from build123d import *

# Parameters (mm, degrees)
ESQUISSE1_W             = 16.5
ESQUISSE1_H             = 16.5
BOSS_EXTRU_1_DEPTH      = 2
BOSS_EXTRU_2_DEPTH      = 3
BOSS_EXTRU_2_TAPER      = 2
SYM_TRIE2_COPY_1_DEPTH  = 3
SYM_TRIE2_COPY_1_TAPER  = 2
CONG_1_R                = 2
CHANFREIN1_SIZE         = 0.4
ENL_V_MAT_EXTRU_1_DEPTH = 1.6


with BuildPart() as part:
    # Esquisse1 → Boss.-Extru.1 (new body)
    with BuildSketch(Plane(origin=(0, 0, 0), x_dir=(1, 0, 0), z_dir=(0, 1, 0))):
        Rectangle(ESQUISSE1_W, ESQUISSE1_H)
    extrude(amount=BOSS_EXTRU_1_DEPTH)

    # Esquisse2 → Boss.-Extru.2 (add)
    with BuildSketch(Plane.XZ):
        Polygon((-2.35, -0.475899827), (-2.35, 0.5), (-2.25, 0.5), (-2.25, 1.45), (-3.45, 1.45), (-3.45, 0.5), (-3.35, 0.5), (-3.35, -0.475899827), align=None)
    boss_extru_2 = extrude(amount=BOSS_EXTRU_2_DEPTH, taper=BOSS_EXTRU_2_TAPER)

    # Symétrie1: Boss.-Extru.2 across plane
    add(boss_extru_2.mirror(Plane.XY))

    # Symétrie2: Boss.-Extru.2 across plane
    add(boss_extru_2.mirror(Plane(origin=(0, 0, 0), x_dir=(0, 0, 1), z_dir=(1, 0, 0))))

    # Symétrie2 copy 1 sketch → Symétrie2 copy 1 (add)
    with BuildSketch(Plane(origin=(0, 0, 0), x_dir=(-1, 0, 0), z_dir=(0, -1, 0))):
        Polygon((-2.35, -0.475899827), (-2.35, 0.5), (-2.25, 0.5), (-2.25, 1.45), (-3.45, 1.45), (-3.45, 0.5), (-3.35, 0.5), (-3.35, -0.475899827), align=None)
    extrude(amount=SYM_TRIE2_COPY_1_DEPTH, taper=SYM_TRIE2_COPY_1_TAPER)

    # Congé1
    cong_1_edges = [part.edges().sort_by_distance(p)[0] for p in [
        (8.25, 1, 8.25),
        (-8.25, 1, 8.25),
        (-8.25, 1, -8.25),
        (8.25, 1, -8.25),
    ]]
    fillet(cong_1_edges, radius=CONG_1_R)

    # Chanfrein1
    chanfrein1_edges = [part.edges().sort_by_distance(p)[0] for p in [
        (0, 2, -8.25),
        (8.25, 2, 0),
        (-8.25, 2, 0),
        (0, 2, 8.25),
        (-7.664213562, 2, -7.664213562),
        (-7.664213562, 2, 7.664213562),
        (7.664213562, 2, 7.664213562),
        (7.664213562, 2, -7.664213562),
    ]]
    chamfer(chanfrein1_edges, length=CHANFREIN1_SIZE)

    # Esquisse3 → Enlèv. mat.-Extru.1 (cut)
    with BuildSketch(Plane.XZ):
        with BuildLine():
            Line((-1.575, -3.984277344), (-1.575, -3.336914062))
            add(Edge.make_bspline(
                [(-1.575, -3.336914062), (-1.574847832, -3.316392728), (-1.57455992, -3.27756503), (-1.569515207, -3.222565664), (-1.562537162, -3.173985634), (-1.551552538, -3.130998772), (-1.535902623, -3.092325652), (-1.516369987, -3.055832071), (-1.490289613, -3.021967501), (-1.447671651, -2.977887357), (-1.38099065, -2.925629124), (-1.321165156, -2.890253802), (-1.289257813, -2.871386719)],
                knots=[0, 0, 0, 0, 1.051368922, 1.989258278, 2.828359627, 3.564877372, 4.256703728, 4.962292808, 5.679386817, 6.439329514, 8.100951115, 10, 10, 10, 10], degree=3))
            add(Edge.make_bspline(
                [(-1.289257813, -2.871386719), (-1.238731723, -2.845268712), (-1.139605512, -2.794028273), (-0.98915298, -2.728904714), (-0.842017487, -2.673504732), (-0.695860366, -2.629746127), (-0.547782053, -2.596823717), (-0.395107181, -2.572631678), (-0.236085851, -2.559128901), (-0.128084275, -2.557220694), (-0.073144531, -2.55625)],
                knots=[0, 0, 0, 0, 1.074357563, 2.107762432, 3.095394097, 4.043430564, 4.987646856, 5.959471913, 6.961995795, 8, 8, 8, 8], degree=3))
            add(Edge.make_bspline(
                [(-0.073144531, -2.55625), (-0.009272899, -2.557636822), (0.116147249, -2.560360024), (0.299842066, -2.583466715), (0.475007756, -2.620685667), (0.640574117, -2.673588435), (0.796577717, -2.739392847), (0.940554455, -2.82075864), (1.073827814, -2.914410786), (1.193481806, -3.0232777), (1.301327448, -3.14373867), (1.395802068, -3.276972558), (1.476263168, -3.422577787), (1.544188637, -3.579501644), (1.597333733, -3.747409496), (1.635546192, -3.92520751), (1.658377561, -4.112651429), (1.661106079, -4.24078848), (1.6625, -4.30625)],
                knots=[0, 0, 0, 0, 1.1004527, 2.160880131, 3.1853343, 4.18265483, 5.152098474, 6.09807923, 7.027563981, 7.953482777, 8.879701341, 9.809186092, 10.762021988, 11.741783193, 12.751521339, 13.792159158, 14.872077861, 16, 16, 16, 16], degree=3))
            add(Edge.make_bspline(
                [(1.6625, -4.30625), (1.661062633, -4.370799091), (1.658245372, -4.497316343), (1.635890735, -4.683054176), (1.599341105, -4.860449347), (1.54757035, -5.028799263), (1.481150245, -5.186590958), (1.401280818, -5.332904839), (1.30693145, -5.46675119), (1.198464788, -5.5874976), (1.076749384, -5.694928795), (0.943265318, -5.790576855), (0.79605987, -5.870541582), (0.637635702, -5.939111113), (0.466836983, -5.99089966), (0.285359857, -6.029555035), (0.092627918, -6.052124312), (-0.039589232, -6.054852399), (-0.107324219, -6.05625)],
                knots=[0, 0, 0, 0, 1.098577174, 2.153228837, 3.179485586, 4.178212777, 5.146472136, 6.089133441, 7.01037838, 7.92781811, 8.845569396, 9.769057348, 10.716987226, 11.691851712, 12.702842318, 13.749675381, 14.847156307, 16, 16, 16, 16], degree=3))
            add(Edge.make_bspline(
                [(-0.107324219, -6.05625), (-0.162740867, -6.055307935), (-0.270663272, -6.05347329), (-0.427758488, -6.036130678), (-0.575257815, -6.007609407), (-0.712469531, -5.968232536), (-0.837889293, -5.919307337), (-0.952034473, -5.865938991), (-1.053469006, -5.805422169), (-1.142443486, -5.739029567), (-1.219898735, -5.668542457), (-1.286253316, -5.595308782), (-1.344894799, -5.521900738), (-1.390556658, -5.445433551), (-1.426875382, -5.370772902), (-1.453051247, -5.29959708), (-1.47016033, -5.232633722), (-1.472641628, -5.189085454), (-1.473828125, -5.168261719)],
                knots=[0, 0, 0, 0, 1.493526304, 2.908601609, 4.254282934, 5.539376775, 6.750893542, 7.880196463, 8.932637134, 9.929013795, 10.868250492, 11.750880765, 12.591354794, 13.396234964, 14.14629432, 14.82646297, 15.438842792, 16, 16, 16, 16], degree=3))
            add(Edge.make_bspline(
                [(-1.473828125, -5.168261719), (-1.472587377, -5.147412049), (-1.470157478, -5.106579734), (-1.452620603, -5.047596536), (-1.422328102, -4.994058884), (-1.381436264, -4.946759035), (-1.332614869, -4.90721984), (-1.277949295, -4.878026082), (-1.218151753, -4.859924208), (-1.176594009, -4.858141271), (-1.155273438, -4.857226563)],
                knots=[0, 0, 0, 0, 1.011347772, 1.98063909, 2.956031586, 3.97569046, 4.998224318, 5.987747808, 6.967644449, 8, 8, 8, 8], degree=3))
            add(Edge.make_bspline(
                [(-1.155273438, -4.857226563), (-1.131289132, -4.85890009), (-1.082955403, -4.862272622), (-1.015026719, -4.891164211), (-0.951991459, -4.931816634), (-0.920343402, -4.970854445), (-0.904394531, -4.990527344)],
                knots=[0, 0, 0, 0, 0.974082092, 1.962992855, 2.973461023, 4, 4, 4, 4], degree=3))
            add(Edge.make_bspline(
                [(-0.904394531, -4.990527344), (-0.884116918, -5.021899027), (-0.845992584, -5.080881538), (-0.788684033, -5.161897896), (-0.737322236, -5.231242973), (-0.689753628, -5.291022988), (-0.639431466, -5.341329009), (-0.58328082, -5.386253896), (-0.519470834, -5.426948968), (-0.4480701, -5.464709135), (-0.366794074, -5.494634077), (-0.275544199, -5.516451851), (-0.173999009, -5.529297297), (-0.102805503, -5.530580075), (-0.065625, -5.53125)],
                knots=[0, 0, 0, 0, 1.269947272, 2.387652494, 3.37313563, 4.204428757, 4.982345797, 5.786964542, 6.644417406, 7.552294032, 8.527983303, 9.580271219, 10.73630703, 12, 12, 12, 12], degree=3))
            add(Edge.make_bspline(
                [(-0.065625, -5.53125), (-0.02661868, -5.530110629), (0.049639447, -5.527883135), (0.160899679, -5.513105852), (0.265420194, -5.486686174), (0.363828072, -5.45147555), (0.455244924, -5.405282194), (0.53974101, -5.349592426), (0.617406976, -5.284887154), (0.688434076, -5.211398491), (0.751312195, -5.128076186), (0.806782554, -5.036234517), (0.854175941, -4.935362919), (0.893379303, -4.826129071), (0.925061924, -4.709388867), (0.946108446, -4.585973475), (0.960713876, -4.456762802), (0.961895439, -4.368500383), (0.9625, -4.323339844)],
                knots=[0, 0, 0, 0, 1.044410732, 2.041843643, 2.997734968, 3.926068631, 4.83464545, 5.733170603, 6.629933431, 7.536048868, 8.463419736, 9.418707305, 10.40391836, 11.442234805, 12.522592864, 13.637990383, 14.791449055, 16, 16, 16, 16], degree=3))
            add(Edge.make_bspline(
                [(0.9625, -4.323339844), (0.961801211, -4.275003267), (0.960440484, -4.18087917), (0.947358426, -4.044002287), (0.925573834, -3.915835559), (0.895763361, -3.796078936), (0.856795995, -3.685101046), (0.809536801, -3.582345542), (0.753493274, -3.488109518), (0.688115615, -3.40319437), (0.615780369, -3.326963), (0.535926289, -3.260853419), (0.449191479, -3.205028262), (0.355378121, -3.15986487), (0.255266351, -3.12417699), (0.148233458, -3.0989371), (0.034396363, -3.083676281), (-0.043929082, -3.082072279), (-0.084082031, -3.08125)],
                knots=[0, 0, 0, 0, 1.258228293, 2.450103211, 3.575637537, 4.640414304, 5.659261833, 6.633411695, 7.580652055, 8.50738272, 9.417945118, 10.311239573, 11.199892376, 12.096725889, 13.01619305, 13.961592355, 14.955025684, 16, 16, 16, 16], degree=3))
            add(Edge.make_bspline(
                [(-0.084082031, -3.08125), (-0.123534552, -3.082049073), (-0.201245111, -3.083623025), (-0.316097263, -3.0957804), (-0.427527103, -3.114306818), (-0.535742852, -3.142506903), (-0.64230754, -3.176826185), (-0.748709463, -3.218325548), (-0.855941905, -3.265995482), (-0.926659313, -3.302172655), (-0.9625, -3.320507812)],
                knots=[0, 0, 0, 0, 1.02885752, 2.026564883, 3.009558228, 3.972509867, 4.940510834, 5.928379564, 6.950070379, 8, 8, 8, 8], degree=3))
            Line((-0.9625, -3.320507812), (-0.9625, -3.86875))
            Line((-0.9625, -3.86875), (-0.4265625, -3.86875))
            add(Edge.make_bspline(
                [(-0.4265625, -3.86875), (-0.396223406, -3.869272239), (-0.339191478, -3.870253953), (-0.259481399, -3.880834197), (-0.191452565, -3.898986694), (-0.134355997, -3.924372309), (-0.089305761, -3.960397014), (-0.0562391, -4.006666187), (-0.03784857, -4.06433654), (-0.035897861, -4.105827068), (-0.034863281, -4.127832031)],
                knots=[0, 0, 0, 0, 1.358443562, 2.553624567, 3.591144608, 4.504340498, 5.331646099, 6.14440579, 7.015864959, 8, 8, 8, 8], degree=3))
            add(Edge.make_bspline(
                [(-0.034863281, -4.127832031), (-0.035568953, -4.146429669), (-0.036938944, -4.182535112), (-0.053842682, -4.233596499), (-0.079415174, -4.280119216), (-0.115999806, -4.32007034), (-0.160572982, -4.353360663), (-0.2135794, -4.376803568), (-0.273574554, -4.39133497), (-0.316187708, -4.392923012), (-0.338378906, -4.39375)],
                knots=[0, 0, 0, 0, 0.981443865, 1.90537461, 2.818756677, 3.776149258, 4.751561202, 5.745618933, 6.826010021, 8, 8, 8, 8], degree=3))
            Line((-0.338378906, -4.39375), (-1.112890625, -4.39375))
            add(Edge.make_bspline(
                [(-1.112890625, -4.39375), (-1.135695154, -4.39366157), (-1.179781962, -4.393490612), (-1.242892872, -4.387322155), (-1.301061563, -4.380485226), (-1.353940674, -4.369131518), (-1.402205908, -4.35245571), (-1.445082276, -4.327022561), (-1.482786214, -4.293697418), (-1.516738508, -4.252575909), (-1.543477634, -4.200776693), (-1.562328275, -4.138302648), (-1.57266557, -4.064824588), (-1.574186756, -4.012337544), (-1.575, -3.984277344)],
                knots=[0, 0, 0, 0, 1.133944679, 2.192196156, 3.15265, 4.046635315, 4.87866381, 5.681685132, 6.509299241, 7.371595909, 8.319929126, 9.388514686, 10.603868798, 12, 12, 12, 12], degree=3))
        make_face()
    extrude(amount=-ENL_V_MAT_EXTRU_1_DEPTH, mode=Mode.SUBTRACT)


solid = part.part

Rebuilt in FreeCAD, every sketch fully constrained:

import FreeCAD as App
import Part
import Sketcher
from FreeCAD import Vector


def edges_at(feature, points):
    """Names of the edges that pass closest to the given points."""
    edges = feature.Shape.Edges
    near = lambda p: min(range(len(edges)), key=lambda i: edges[i].distToShape(Part.Vertex(*p))[0])
    return sorted({f"Edge{near(p) + 1}" for p in points})

doc = App.newDocument("Part")
body = doc.addObject("PartDesign::Body", "Body")

# Sketch on XZ plane
sketch1 = body.newObject("Sketcher::SketchObject", "Sketch")
sketch1.AttachmentSupport = (doc.getObject("XZ_Plane"), [""])
sketch1.MapMode = "FlatFace"
sketch1.addGeometry(Part.LineSegment(Vector(-8.25, -8.25, 0), Vector(-8.25, 8.25, 0)), False)
sketch1.addGeometry(Part.LineSegment(Vector(-8.25, 8.25, 0), Vector(8.25, 8.25, 0)), False)
sketch1.addGeometry(Part.LineSegment(Vector(8.25, 8.25, 0), Vector(8.25, -8.25, 0)), False)
sketch1.addGeometry(Part.LineSegment(Vector(8.25, -8.25, 0), Vector(-8.25, -8.25, 0)), False)
sketch1.addConstraint(Sketcher.Constraint("Coincident", 0, 2, 1, 1))
sketch1.addConstraint(Sketcher.Constraint("Coincident", 1, 2, 2, 1))
sketch1.addConstraint(Sketcher.Constraint("Coincident", 2, 2, 3, 1))
sketch1.addConstraint(Sketcher.Constraint("Coincident", 3, 2, 0, 1))
sketch1.addConstraint(Sketcher.Constraint("Vertical", 0))
sketch1.addConstraint(Sketcher.Constraint("Horizontal", 1))
sketch1.addConstraint(Sketcher.Constraint("Vertical", 2))
sketch1.addConstraint(Sketcher.Constraint("Horizontal", 3))
sketch1.addConstraint(Sketcher.Constraint("Symmetric", 0, 2, 2, 2, -1, 1))
sketch1.addConstraint(Sketcher.Constraint("Equal", 3, 0))
sketch1.addConstraint(Sketcher.Constraint("DistanceX", 1, 1, 1, 2, 16.5))
pad1 = body.newObject("PartDesign::Pad", "Pad")
pad1.Profile = sketch1
pad1.Length = 2
pad1.Reversed = True

# Sketch on XZ plane
sketch2 = body.newObject("Sketcher::SketchObject", "Sketch001")
sketch2.AttachmentSupport = (doc.getObject("XZ_Plane"), [""])
sketch2.MapMode = "FlatFace"
sketch2.addGeometry(Part.LineSegment(Vector(-2.35, -0.4759, 0), Vector(-2.35, 0.5, 0)), False)
sketch2.addGeometry(Part.LineSegment(Vector(-2.35, 0.5, 0), Vector(-2.25, 0.5, 0)), False)
sketch2.addGeometry(Part.LineSegment(Vector(-2.25, 0.5, 0), Vector(-2.25, 1.45, 0)), False)
sketch2.addGeometry(Part.LineSegment(Vector(-2.25, 1.45, 0), Vector(-3.45, 1.45, 0)), False)
sketch2.addGeometry(Part.LineSegment(Vector(-3.45, 1.45, 0), Vector(-3.45, 0.5, 0)), False)
sketch2.addGeometry(Part.LineSegment(Vector(-3.45, 0.5, 0), Vector(-3.35, 0.5, 0)), False)
sketch2.addGeometry(Part.LineSegment(Vector(-3.35, 0.5, 0), Vector(-3.35, -0.4759, 0)), False)
sketch2.addGeometry(Part.LineSegment(Vector(-3.35, -0.4759, 0), Vector(-2.35, -0.4759, 0)), False)
sketch2.addConstraint(Sketcher.Constraint("Coincident", 0, 2, 1, 1))
sketch2.addConstraint(Sketcher.Constraint("Coincident", 1, 2, 2, 1))
sketch2.addConstraint(Sketcher.Constraint("Coincident", 2, 2, 3, 1))
sketch2.addConstraint(Sketcher.Constraint("Coincident", 3, 2, 4, 1))
sketch2.addConstraint(Sketcher.Constraint("Coincident", 4, 2, 5, 1))
sketch2.addConstraint(Sketcher.Constraint("Coincident", 5, 2, 6, 1))
sketch2.addConstraint(Sketcher.Constraint("Coincident", 6, 2, 7, 1))
sketch2.addConstraint(Sketcher.Constraint("Coincident", 7, 2, 0, 1))
sketch2.addConstraint(Sketcher.Constraint("Vertical", 0))
sketch2.addConstraint(Sketcher.Constraint("Horizontal", 1))
sketch2.addConstraint(Sketcher.Constraint("Vertical", 2))
sketch2.addConstraint(Sketcher.Constraint("Horizontal", 3))
sketch2.addConstraint(Sketcher.Constraint("Vertical", 4))
sketch2.addConstraint(Sketcher.Constraint("Horizontal", 5))
sketch2.addConstraint(Sketcher.Constraint("Vertical", 6))
sketch2.addConstraint(Sketcher.Constraint("Horizontal", 7))
sketch2.addConstraint(Sketcher.Constraint("Horizontal", 1, 2, 4, 2))
sketch2.addConstraint(Sketcher.Constraint("Equal", 1, 5))
sketch2.addConstraint(Sketcher.Constraint("DistanceX", 7, 1, 7, 2, 1.0))
sketch2.addConstraint(Sketcher.Constraint("DistanceX", 1, 1, 1, 2, 0.1))
sketch2.addConstraint(Sketcher.Constraint("DistanceY", 2, 1, 2, 2, 0.95))
sketch2.addConstraint(Sketcher.Constraint("DistanceY", -1, 1, 0, 2, 0.5))
sketch2.addConstraint(Sketcher.Constraint("DistanceX", 0, 2, -1, 1, 2.35))
sketch2.addConstraint(Sketcher.Constraint("DistanceY", 0, 1, 0, 2, 0.9759))
pad2 = body.newObject("PartDesign::Pad", "Pad001")
pad2.Profile = sketch2
pad2.Length = 3
pad2.TaperAngle = -2
doc.recompute()

mirrored = body.newObject("PartDesign::Mirrored", "Mirrored")
mirrored.Originals = [pad2]
mirrored.MirrorPlane = (doc.getObject("XY_Plane"), [""])
body.Tip = mirrored
doc.recompute()

mirrored2 = body.newObject("PartDesign::Mirrored", "Mirrored001")
mirrored2.Originals = [pad2]
mirrored2.MirrorPlane = (doc.getObject("YZ_Plane"), [""])
body.Tip = mirrored2

# Sketch on XZ plane
sketch3 = body.newObject("Sketcher::SketchObject", "Sketch002")
sketch3.AttachmentSupport = (doc.getObject("XZ_Plane"), [""])
sketch3.MapMode = "FlatFace"
sketch3.addGeometry(Part.LineSegment(Vector(2.35, 0.4759, 0), Vector(2.35, -0.5, 0)), False)
sketch3.addGeometry(Part.LineSegment(Vector(2.35, -0.5, 0), Vector(2.25, -0.5, 0)), False)
sketch3.addGeometry(Part.LineSegment(Vector(2.25, -0.5, 0), Vector(2.25, -1.45, 0)), False)
sketch3.addGeometry(Part.LineSegment(Vector(2.25, -1.45, 0), Vector(3.45, -1.45, 0)), False)
sketch3.addGeometry(Part.LineSegment(Vector(3.45, -1.45, 0), Vector(3.45, -0.5, 0)), False)
sketch3.addGeometry(Part.LineSegment(Vector(3.45, -0.5, 0), Vector(3.35, -0.5, 0)), False)
sketch3.addGeometry(Part.LineSegment(Vector(3.35, -0.5, 0), Vector(3.35, 0.4759, 0)), False)
sketch3.addGeometry(Part.LineSegment(Vector(3.35, 0.4759, 0), Vector(2.35, 0.4759, 0)), False)
sketch3.addConstraint(Sketcher.Constraint("Coincident", 0, 2, 1, 1))
sketch3.addConstraint(Sketcher.Constraint("Coincident", 1, 2, 2, 1))
sketch3.addConstraint(Sketcher.Constraint("Coincident", 2, 2, 3, 1))
sketch3.addConstraint(Sketcher.Constraint("Coincident", 3, 2, 4, 1))
sketch3.addConstraint(Sketcher.Constraint("Coincident", 4, 2, 5, 1))
sketch3.addConstraint(Sketcher.Constraint("Coincident", 5, 2, 6, 1))
sketch3.addConstraint(Sketcher.Constraint("Coincident", 6, 2, 7, 1))
sketch3.addConstraint(Sketcher.Constraint("Coincident", 7, 2, 0, 1))
sketch3.addConstraint(Sketcher.Constraint("Vertical", 0))
sketch3.addConstraint(Sketcher.Constraint("Horizontal", 1))
sketch3.addConstraint(Sketcher.Constraint("Vertical", 2))
sketch3.addConstraint(Sketcher.Constraint("Horizontal", 3))
sketch3.addConstraint(Sketcher.Constraint("Vertical", 4))
sketch3.addConstraint(Sketcher.Constraint("Horizontal", 5))
sketch3.addConstraint(Sketcher.Constraint("Vertical", 6))
sketch3.addConstraint(Sketcher.Constraint("Horizontal", 7))
sketch3.addConstraint(Sketcher.Constraint("Horizontal", 1, 2, 4, 2))
sketch3.addConstraint(Sketcher.Constraint("Equal", 1, 5))
sketch3.addConstraint(Sketcher.Constraint("DistanceX", 7, 2, 7, 1, 1.0))
sketch3.addConstraint(Sketcher.Constraint("DistanceX", 1, 2, 1, 1, 0.1))
sketch3.addConstraint(Sketcher.Constraint("DistanceY", 2, 2, 2, 1, 0.95))
sketch3.addConstraint(Sketcher.Constraint("DistanceY", 0, 2, -1, 1, 0.5))
sketch3.addConstraint(Sketcher.Constraint("DistanceX", -1, 1, 0, 2, 2.35))
sketch3.addConstraint(Sketcher.Constraint("DistanceY", 0, 2, 0, 1, 0.9759))
pad3 = body.newObject("PartDesign::Pad", "Pad002")
pad3.Profile = sketch3
pad3.Length = 3
pad3.TaperAngle = -2
doc.recompute()

fillet = body.newObject("PartDesign::Fillet", "Fillet")
fillet.Base = (pad3, edges_at(pad3, [
    (8.25, 1, 8.25),
    (-8.25, 1, 8.25),
    (-8.25, 1, -8.25),
    (8.25, 1, -8.25),
]))
fillet.Radius = 2
doc.recompute()

chamfer = body.newObject("PartDesign::Chamfer", "Chamfer")
chamfer.Base = (fillet, edges_at(fillet, [
    (0, 2, -8.25),
    (8.25, 2, 0),
    (-8.25, 2, 0),
    (0, 2, 8.25),
    (-7.664, 2, -7.664),
    (-7.664, 2, 7.664),
    (7.664, 2, 7.664),
    (7.664, 2, -7.664),
]))
chamfer.Size = 0.4

# Sketch on XZ plane
sketch4 = body.newObject("Sketcher::SketchObject", "Sketch003")
sketch4.AttachmentSupport = (doc.getObject("XZ_Plane"), [""])
sketch4.MapMode = "FlatFace"
sketch4.addGeometry(Part.LineSegment(Vector(-1.575, -3.336914, 0), Vector(-1.575, -3.984277, 0)), False)
sketch4.addGeometry(Part.BSplineCurve([Vector(-1.112891, -4.39375, 0), Vector(-1.135695, -4.393662, 0), Vector(-1.179782, -4.393491, 0), Vector(-1.242893, -4.387322, 0), Vector(-1.301062, -4.380485, 0), Vector(-1.353941, -4.369132, 0), Vector(-1.402206, -4.352456, 0), Vector(-1.445082, -4.327023, 0), Vector(-1.482786, -4.293697, 0), Vector(-1.516739, -4.252576, 0), Vector(-1.543478, -4.200777, 0), Vector(-1.562328, -4.138303, 0), Vector(-1.572666, -4.064825, 0), Vector(-1.574187, -4.012338, 0), Vector(-1.575, -3.984277, 0)], [4, 1, 1, 1, 1, 1, 1, 1, 1, 1, 1, 1, 4], [0, 1.133944679, 2.192196156, 3.15265, 4.046635315, 4.87866381, 5.681685132, 6.509299241, 7.371595909, 8.319929126, 9.388514686, 10.603868798, 12], False, 3, [1, 1, 1, 1, 1, 1, 1, 1, 1, 1, 1, 1, 1, 1, 1], False), False)
sketch4.addGeometry(Part.LineSegment(Vector(-1.112891, -4.39375, 0), Vector(-0.338379, -4.39375, 0)), False)
sketch4.addGeometry(Part.BSplineCurve([Vector(-0.034863, -4.127832, 0), Vector(-0.035569, -4.14643, 0), Vector(-0.036939, -4.182535, 0), Vector(-0.053843, -4.233596, 0), Vector(-0.079415, -4.280119, 0), Vector(-0.116, -4.32007, 0), Vector(-0.160573, -4.353361, 0), Vector(-0.213579, -4.376804, 0), Vector(-0.273575, -4.391335, 0), Vector(-0.316188, -4.392923, 0), Vector(-0.338379, -4.39375, 0)], [4, 1, 1, 1, 1, 1, 1, 1, 4], [0, 0.981443865, 1.90537461, 2.818756677, 3.776149258, 4.751561202, 5.745618933, 6.826010021, 8], False, 3, [1, 1, 1, 1, 1, 1, 1, 1, 1, 1, 1], False), False)
sketch4.addGeometry(Part.BSplineCurve([Vector(-0.426563, -3.86875, 0), Vector(-0.396223, -3.869272, 0), Vector(-0.339191, -3.870254, 0), Vector(-0.259481, -3.880834, 0), Vector(-0.191453, -3.898987, 0), Vector(-0.134356, -3.924372, 0), Vector(-0.089306, -3.960397, 0), Vector(-0.056239, -4.006666, 0), Vector(-0.037849, -4.064337, 0), Vector(-0.035898, -4.105827, 0), Vector(-0.034863, -4.127832, 0)], [4, 1, 1, 1, 1, 1, 1, 1, 4], [0, 1.358443562, 2.553624567, 3.591144608, 4.504340498, 5.331646099, 6.14440579, 7.015864959, 8], False, 3, [1, 1, 1, 1, 1, 1, 1, 1, 1, 1, 1], False), False)
sketch4.addGeometry(Part.LineSegment(Vector(-0.426563, -3.86875, 0), Vector(-0.9625, -3.86875, 0)), False)
sketch4.addGeometry(Part.LineSegment(Vector(-0.9625, -3.86875, 0), Vector(-0.9625, -3.320508, 0)), False)
sketch4.addGeometry(Part.BSplineCurve([Vector(-0.084082, -3.08125, 0), Vector(-0.123535, -3.082049, 0), Vector(-0.201245, -3.083623, 0), Vector(-0.316097, -3.09578, 0), Vector(-0.427527, -3.114307, 0), Vector(-0.535743, -3.142507, 0), Vector(-0.642308, -3.176826, 0), Vector(-0.748709, -3.218326, 0), Vector(-0.855942, -3.265995, 0), Vector(-0.926659, -3.302173, 0), Vector(-0.9625, -3.320508, 0)], [4, 1, 1, 1, 1, 1, 1, 1, 4], [0, 1.02885752, 2.026564883, 3.009558228, 3.972509867, 4.940510834, 5.928379564, 6.950070379, 8], False, 3, [1, 1, 1, 1, 1, 1, 1, 1, 1, 1, 1], False), False)
sketch4.addGeometry(Part.BSplineCurve([Vector(0.9625, -4.32334, 0), Vector(0.961801, -4.275003, 0), Vector(0.96044, -4.180879, 0), Vector(0.947358, -4.044002, 0), Vector(0.925574, -3.915836, 0), Vector(0.895763, -3.796079, 0), Vector(0.856796, -3.685101, 0), Vector(0.809537, -3.582346, 0), Vector(0.753493, -3.48811, 0), Vector(0.688116, -3.403194, 0), Vector(0.61578, -3.326963, 0), Vector(0.535926, -3.260853, 0), Vector(0.449191, -3.205028, 0), Vector(0.355378, -3.159865, 0), Vector(0.255266, -3.124177, 0), Vector(0.148233, -3.098937, 0), Vector(0.034396, -3.083676, 0), Vector(-0.043929, -3.082072, 0), Vector(-0.084082, -3.08125, 0)], [4, 1, 1, 1, 1, 1, 1, 1, 1, 1, 1, 1, 1, 1, 1, 1, 4], [0, 1.258228293, 2.450103211, 3.575637537, 4.640414304, 5.659261833, 6.633411695, 7.580652055, 8.50738272, 9.417945118, 10.311239573, 11.199892376, 12.096725889, 13.01619305, 13.961592355, 14.955025684, 16], False, 3, [1, 1, 1, 1, 1, 1, 1, 1, 1, 1, 1, 1, 1, 1, 1, 1, 1, 1, 1], False), False)
sketch4.addGeometry(Part.BSplineCurve([Vector(-0.065625, -5.53125, 0), Vector(-0.026619, -5.530111, 0), Vector(0.049639, -5.527883, 0), Vector(0.1609, -5.513106, 0), Vector(0.26542, -5.486686, 0), Vector(0.363828, -5.451476, 0), Vector(0.455245, -5.405282, 0), Vector(0.539741, -5.349592, 0), Vector(0.617407, -5.284887, 0), Vector(0.688434, -5.211398, 0), Vector(0.751312, -5.128076, 0), Vector(0.806783, -5.036235, 0), Vector(0.854176, -4.935363, 0), Vector(0.893379, -4.826129, 0), Vector(0.925062, -4.709389, 0), Vector(0.946108, -4.585973, 0), Vector(0.960714, -4.456763, 0), Vector(0.961895, -4.3685, 0), Vector(0.9625, -4.32334, 0)], [4, 1, 1, 1, 1, 1, 1, 1, 1, 1, 1, 1, 1, 1, 1, 1, 4], [0, 1.044410732, 2.041843643, 2.997734968, 3.926068631, 4.83464545, 5.733170603, 6.629933431, 7.536048868, 8.463419736, 9.418707305, 10.40391836, 11.442234805, 12.522592864, 13.637990383, 14.791449055, 16], False, 3, [1, 1, 1, 1, 1, 1, 1, 1, 1, 1, 1, 1, 1, 1, 1, 1, 1, 1, 1], False), False)
sketch4.addGeometry(Part.BSplineCurve([Vector(-0.904395, -4.990527, 0), Vector(-0.884117, -5.021899, 0), Vector(-0.845993, -5.080882, 0), Vector(-0.788684, -5.161898, 0), Vector(-0.737322, -5.231243, 0), Vector(-0.689754, -5.291023, 0), Vector(-0.639431, -5.341329, 0), Vector(-0.583281, -5.386254, 0), Vector(-0.519471, -5.426949, 0), Vector(-0.44807, -5.464709, 0), Vector(-0.366794, -5.494634, 0), Vector(-0.275544, -5.516452, 0), Vector(-0.173999, -5.529297, 0), Vector(-0.102806, -5.53058, 0), Vector(-0.065625, -5.53125, 0)], [4, 1, 1, 1, 1, 1, 1, 1, 1, 1, 1, 1, 4], [0, 1.269947272, 2.387652494, 3.37313563, 4.204428757, 4.982345797, 5.786964542, 6.644417406, 7.552294032, 8.527983303, 9.580271219, 10.73630703, 12], False, 3, [1, 1, 1, 1, 1, 1, 1, 1, 1, 1, 1, 1, 1, 1, 1], False), False)
sketch4.addGeometry(Part.BSplineCurve([Vector(-1.155273, -4.857227, 0), Vector(-1.131289, -4.8589, 0), Vector(-1.082955, -4.862273, 0), Vector(-1.015027, -4.891164, 0), Vector(-0.951991, -4.931817, 0), Vector(-0.920343, -4.970854, 0), Vector(-0.904395, -4.990527, 0)], [4, 1, 1, 1, 4], [0, 0.974082092, 1.962992855, 2.973461023, 4], False, 3, [1, 1, 1, 1, 1, 1, 1], False), False)
sketch4.addGeometry(Part.BSplineCurve([Vector(-1.473828, -5.168262, 0), Vector(-1.472587, -5.147412, 0), Vector(-1.470157, -5.10658, 0), Vector(-1.452621, -5.047597, 0), Vector(-1.422328, -4.994059, 0), Vector(-1.381436, -4.946759, 0), Vector(-1.332615, -4.90722, 0), Vector(-1.277949, -4.878026, 0), Vector(-1.218152, -4.859924, 0), Vector(-1.176594, -4.858141, 0), Vector(-1.155273, -4.857227, 0)], [4, 1, 1, 1, 1, 1, 1, 1, 4], [0, 1.011347772, 1.98063909, 2.956031586, 3.97569046, 4.998224318, 5.987747808, 6.967644449, 8], False, 3, [1, 1, 1, 1, 1, 1, 1, 1, 1, 1, 1], False), False)
sketch4.addGeometry(Part.BSplineCurve([Vector(-0.107324, -6.05625, 0), Vector(-0.162741, -6.055308, 0), Vector(-0.270663, -6.053473, 0), Vector(-0.427758, -6.036131, 0), Vector(-0.575258, -6.007609, 0), Vector(-0.71247, -5.968233, 0), Vector(-0.837889, -5.919307, 0), Vector(-0.952034, -5.865939, 0), Vector(-1.053469, -5.805422, 0), Vector(-1.142443, -5.73903, 0), Vector(-1.219899, -5.668542, 0), Vector(-1.286253, -5.595309, 0), Vector(-1.344895, -5.521901, 0), Vector(-1.390557, -5.445434, 0), Vector(-1.426875, -5.370773, 0), Vector(-1.453051, -5.299597, 0), Vector(-1.47016, -5.232634, 0), Vector(-1.472642, -5.189085, 0), Vector(-1.473828, -5.168262, 0)], [4, 1, 1, 1, 1, 1, 1, 1, 1, 1, 1, 1, 1, 1, 1, 1, 4], [0, 1.493526304, 2.908601609, 4.254282934, 5.539376775, 6.750893542, 7.880196463, 8.932637134, 9.929013795, 10.868250492, 11.750880765, 12.591354794, 13.396234964, 14.14629432, 14.82646297, 15.438842792, 16], False, 3, [1, 1, 1, 1, 1, 1, 1, 1, 1, 1, 1, 1, 1, 1, 1, 1, 1, 1, 1], False), False)
sketch4.addGeometry(Part.BSplineCurve([Vector(1.6625, -4.30625, 0), Vector(1.661063, -4.370799, 0), Vector(1.658245, -4.497316, 0), Vector(1.635891, -4.683054, 0), Vector(1.599341, -4.860449, 0), Vector(1.54757, -5.028799, 0), Vector(1.48115, -5.186591, 0), Vector(1.401281, -5.332905, 0), Vector(1.306931, -5.466751, 0), Vector(1.198465, -5.587498, 0), Vector(1.076749, -5.694929, 0), Vector(0.943265, -5.790577, 0), Vector(0.79606, -5.870542, 0), Vector(0.637636, -5.939111, 0), Vector(0.466837, -5.9909, 0), Vector(0.28536, -6.029555, 0), Vector(0.092628, -6.052124, 0), Vector(-0.039589, -6.054852, 0), Vector(-0.107324, -6.05625, 0)], [4, 1, 1, 1, 1, 1, 1, 1, 1, 1, 1, 1, 1, 1, 1, 1, 4], [0, 1.098577174, 2.153228837, 3.179485586, 4.178212777, 5.146472136, 6.089133441, 7.01037838, 7.92781811, 8.845569396, 9.769057348, 10.716987226, 11.691851712, 12.702842318, 13.749675381, 14.847156307, 16], False, 3, [1, 1, 1, 1, 1, 1, 1, 1, 1, 1, 1, 1, 1, 1, 1, 1, 1, 1, 1], False), False)
sketch4.addGeometry(Part.BSplineCurve([Vector(-0.073145, -2.55625, 0), Vector(-0.009273, -2.557637, 0), Vector(0.116147, -2.56036, 0), Vector(0.299842, -2.583467, 0), Vector(0.475008, -2.620686, 0), Vector(0.640574, -2.673588, 0), Vector(0.796578, -2.739393, 0), Vector(0.940554, -2.820759, 0), Vector(1.073828, -2.914411, 0), Vector(1.193482, -3.023278, 0), Vector(1.301327, -3.143739, 0), Vector(1.395802, -3.276973, 0), Vector(1.476263, -3.422578, 0), Vector(1.544189, -3.579502, 0), Vector(1.597334, -3.747409, 0), Vector(1.635546, -3.925208, 0), Vector(1.658378, -4.112651, 0), Vector(1.661106, -4.240788, 0), Vector(1.6625, -4.30625, 0)], [4, 1, 1, 1, 1, 1, 1, 1, 1, 1, 1, 1, 1, 1, 1, 1, 4], [0, 1.1004527, 2.160880131, 3.1853343, 4.18265483, 5.152098474, 6.09807923, 7.027563981, 7.953482777, 8.879701341, 9.809186092, 10.762021988, 11.741783193, 12.751521339, 13.792159158, 14.872077861, 16], False, 3, [1, 1, 1, 1, 1, 1, 1, 1, 1, 1, 1, 1, 1, 1, 1, 1, 1, 1, 1], False), False)
sketch4.addGeometry(Part.BSplineCurve([Vector(-1.289258, -2.871387, 0), Vector(-1.238732, -2.845269, 0), Vector(-1.139606, -2.794028, 0), Vector(-0.989153, -2.728905, 0), Vector(-0.842017, -2.673505, 0), Vector(-0.69586, -2.629746, 0), Vector(-0.547782, -2.596824, 0), Vector(-0.395107, -2.572632, 0), Vector(-0.236086, -2.559129, 0), Vector(-0.128084, -2.557221, 0), Vector(-0.073145, -2.55625, 0)], [4, 1, 1, 1, 1, 1, 1, 1, 4], [0, 1.074357563, 2.107762432, 3.095394097, 4.043430564, 4.987646856, 5.959471913, 6.961995795, 8], False, 3, [1, 1, 1, 1, 1, 1, 1, 1, 1, 1, 1], False), False)
sketch4.addGeometry(Part.BSplineCurve([Vector(-1.575, -3.336914, 0), Vector(-1.574848, -3.316393, 0), Vector(-1.57456, -3.277565, 0), Vector(-1.569515, -3.222566, 0), Vector(-1.562537, -3.173986, 0), Vector(-1.551553, -3.130999, 0), Vector(-1.535903, -3.092326, 0), Vector(-1.51637, -3.055832, 0), Vector(-1.49029, -3.021968, 0), Vector(-1.447672, -2.977887, 0), Vector(-1.380991, -2.925629, 0), Vector(-1.321165, -2.890254, 0), Vector(-1.289258, -2.871387, 0)], [4, 1, 1, 1, 1, 1, 1, 1, 1, 1, 4], [0, 1.051368922, 1.989258278, 2.828359627, 3.564877372, 4.256703728, 4.962292808, 5.679386817, 6.439329514, 8.100951115, 10], False, 3, [1, 1, 1, 1, 1, 1, 1, 1, 1, 1, 1, 1, 1], False), False)
sketch4.addConstraint(Sketcher.Constraint("Block", 1))
sketch4.addConstraint(Sketcher.Constraint("Block", 3))
sketch4.addConstraint(Sketcher.Constraint("Block", 4))
sketch4.addConstraint(Sketcher.Constraint("Block", 7))
sketch4.addConstraint(Sketcher.Constraint("Block", 8))
sketch4.addConstraint(Sketcher.Constraint("Block", 9))
sketch4.addConstraint(Sketcher.Constraint("Block", 10))
sketch4.addConstraint(Sketcher.Constraint("Block", 11))
sketch4.addConstraint(Sketcher.Constraint("Block", 12))
sketch4.addConstraint(Sketcher.Constraint("Block", 13))
sketch4.addConstraint(Sketcher.Constraint("Block", 14))
sketch4.addConstraint(Sketcher.Constraint("Block", 15))
sketch4.addConstraint(Sketcher.Constraint("Block", 16))
sketch4.addConstraint(Sketcher.Constraint("Block", 17))
sketch4.addConstraint(Sketcher.Constraint("Coincident", 0, 2, 1, 2))
sketch4.addConstraint(Sketcher.Constraint("Coincident", 1, 1, 2, 1))
sketch4.addConstraint(Sketcher.Constraint("Coincident", 2, 2, 3, 2))
sketch4.addConstraint(Sketcher.Constraint("Coincident", 4, 1, 5, 1))
sketch4.addConstraint(Sketcher.Constraint("Coincident", 5, 2, 6, 1))
sketch4.addConstraint(Sketcher.Constraint("Coincident", 6, 2, 7, 2))
sketch4.addConstraint(Sketcher.Constraint("Coincident", 17, 1, 0, 1))
sketch4.addConstraint(Sketcher.Constraint("Horizontal", 5))
sketch4.addConstraint(Sketcher.Constraint("Vertical", 6))
pocket1 = body.newObject("PartDesign::Pocket", "Pocket")
pocket1.Profile = sketch4
pocket1.Length = 1.6

doc.recompute()
